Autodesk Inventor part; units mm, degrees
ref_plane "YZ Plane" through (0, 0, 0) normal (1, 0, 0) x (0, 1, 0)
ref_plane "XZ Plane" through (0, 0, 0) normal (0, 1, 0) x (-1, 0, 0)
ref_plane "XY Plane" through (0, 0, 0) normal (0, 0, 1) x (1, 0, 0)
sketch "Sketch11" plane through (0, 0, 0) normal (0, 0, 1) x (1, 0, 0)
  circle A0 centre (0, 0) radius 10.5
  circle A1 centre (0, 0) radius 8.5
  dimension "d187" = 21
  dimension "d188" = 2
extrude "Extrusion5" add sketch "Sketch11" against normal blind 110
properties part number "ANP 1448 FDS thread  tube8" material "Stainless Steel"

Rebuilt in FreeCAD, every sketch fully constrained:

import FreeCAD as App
import Part
import Sketcher

V = App.Vector
Q = App.Units.Quantity

doc = App.newDocument("Part")
body = doc.addObject("PartDesign::Body", "Body")

# Sketch on XY plane
sketch1 = body.newObject("Sketcher::SketchObject", "Sketch")
sketch1.AttachmentSupport = (doc.getObject("XY_Plane"), [""])
sketch1.MapMode = "FlatFace"
sketch1.addGeometry(Part.Circle(V(0, 0, 0), V(0, 0, 1), 10), False)
sketch1.addGeometry(Part.Circle(V(0, 0, 0), V(0, 0, 1), 8), False)
sketch1.addConstraint(Sketcher.Constraint("Coincident", 0, 3, -1, 1))
sketch1.addConstraint(Sketcher.Constraint("Coincident", 1, 3, -1, 1))
sketch1.addConstraint(Sketcher.Constraint("Diameter", 0, Q("21 mm")))
sketch1.addConstraint(Sketcher.Constraint("Diameter", 1, Q("17 mm")))
pad1 = body.newObject("PartDesign::Pad", "Pad")
pad1.Profile = sketch1
pad1.Length = 110
pad1.Reversed = True

doc.recompute()
